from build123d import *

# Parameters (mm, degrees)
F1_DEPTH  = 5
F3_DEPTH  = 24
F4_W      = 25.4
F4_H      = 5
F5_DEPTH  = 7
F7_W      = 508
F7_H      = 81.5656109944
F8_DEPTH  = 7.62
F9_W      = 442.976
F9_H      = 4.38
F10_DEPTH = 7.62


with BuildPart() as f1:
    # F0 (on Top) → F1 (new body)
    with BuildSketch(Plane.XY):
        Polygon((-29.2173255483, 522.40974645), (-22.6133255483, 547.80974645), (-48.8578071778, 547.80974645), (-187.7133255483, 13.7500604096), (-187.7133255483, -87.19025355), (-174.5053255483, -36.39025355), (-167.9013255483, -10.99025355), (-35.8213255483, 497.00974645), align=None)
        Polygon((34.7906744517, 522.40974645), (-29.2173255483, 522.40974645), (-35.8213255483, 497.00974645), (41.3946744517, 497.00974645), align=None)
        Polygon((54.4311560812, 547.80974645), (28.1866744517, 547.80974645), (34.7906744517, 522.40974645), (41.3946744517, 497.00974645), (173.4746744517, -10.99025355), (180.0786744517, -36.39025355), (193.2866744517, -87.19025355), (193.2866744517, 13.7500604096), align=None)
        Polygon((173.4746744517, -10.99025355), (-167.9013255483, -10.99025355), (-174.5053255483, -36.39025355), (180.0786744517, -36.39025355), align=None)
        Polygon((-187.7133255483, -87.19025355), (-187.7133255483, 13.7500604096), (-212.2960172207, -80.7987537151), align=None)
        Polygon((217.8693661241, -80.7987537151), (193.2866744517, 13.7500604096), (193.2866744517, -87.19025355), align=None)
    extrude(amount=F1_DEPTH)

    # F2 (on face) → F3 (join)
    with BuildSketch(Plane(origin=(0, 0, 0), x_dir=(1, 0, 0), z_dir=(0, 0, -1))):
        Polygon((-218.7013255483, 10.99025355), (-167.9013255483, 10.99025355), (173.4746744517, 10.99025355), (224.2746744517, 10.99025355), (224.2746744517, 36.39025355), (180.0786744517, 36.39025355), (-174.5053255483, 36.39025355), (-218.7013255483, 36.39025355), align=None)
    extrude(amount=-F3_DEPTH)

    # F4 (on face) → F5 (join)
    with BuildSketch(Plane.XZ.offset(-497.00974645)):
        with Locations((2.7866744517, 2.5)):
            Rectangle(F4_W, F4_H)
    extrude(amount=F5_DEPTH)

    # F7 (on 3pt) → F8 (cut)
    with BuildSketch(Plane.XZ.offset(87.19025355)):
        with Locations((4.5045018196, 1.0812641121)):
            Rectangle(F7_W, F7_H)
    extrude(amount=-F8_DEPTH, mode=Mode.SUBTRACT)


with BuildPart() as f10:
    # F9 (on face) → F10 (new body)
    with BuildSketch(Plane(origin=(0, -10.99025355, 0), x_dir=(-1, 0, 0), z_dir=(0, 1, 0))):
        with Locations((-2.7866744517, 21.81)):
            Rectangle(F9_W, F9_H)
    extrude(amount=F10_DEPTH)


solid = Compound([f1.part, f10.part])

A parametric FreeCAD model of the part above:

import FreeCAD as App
import Part
import Sketcher
Q = App.Units.Quantity

doc = App.newDocument("Part")
body = doc.addObject("PartDesign::Body", "Body")

sketch1 = doc.addObject("Sketcher::SketchObject", "Sketch")
body.addObject(sketch1)
sketch1.AttachmentSupport = (doc.XY_Plane, [""])
sketch1.MapMode = "FlatFace"
sketch1.addGeometry(Part.LineSegment(App.Vector(-23, 548, 0), App.Vector(-49, 548, 0)), False)
sketch1.addGeometry(Part.LineSegment(App.Vector(-49, 548, 0), App.Vector(-212, -81, 0)), False)
sketch1.addGeometry(Part.LineSegment(App.Vector(-212, -81, 0), App.Vector(-188, -87, 0)), False)
sketch1.addGeometry(Part.LineSegment(App.Vector(-188, -87, 0), App.Vector(-175, -36, 0)), False)
sketch1.addGeometry(Part.LineSegment(App.Vector(-175, -36, 0), App.Vector(180, -36, 0)), False)
sketch1.addGeometry(Part.LineSegment(App.Vector(180, -36, 0), App.Vector(193, -87, 0)), False)
sketch1.addGeometry(Part.LineSegment(App.Vector(193, -87, 0), App.Vector(218, -81, 0)), False)
sketch1.addGeometry(Part.LineSegment(App.Vector(218, -81, 0), App.Vector(54, 548, 0)), False)
sketch1.addGeometry(Part.LineSegment(App.Vector(54, 548, 0), App.Vector(28, 548, 0)), False)
sketch1.addGeometry(Part.LineSegment(App.Vector(28, 548, 0), App.Vector(35, 522, 0)), False)
sketch1.addGeometry(Part.LineSegment(App.Vector(35, 522, 0), App.Vector(-29, 522, 0)), False)
sketch1.addGeometry(Part.LineSegment(App.Vector(-29, 522, 0), App.Vector(-23, 548, 0)), False)
sketch1.addGeometry(Part.LineSegment(App.Vector(-168, -11, 0), App.Vector(-36, 497, 0)), False)
sketch1.addGeometry(Part.LineSegment(App.Vector(-36, 497, 0), App.Vector(41, 497, 0)), False)
sketch1.addGeometry(Part.LineSegment(App.Vector(41, 497, 0), App.Vector(173, -11, 0)), False)
sketch1.addGeometry(Part.LineSegment(App.Vector(173, -11, 0), App.Vector(-168, -11, 0)), False)
sketch1.addConstraint(Sketcher.Constraint("Coincident", 0, 2, 1, 1))
sketch1.addConstraint(Sketcher.Constraint("Coincident", 1, 2, 2, 1))
sketch1.addConstraint(Sketcher.Constraint("Coincident", 2, 2, 3, 1))
sketch1.addConstraint(Sketcher.Constraint("Coincident", 3, 2, 4, 1))
sketch1.addConstraint(Sketcher.Constraint("Coincident", 4, 2, 5, 1))
sketch1.addConstraint(Sketcher.Constraint("Coincident", 5, 2, 6, 1))
sketch1.addConstraint(Sketcher.Constraint("Coincident", 6, 2, 7, 1))
sketch1.addConstraint(Sketcher.Constraint("Coincident", 7, 2, 8, 1))
sketch1.addConstraint(Sketcher.Constraint("Coincident", 8, 2, 9, 1))
sketch1.addConstraint(Sketcher.Constraint("Coincident", 9, 2, 10, 1))
sketch1.addConstraint(Sketcher.Constraint("Coincident", 10, 2, 11, 1))
sketch1.addConstraint(Sketcher.Constraint("Coincident", 11, 2, 0, 1))
sketch1.addConstraint(Sketcher.Constraint("Coincident", 12, 2, 13, 1))
sketch1.addConstraint(Sketcher.Constraint("Coincident", 13, 2, 14, 1))
sketch1.addConstraint(Sketcher.Constraint("Coincident", 14, 2, 15, 1))
sketch1.addConstraint(Sketcher.Constraint("Coincident", 15, 2, 12, 1))
sketch1.addConstraint(Sketcher.Constraint("Horizontal", 0))
sketch1.addConstraint(Sketcher.Constraint("Horizontal", 4))
sketch1.addConstraint(Sketcher.Constraint("Horizontal", 8))
sketch1.addConstraint(Sketcher.Constraint("Horizontal", 10))
sketch1.addConstraint(Sketcher.Constraint("Horizontal", 13))
sketch1.addConstraint(Sketcher.Constraint("Horizontal", 15))
sketch1.addConstraint(Sketcher.Constraint("Perpendicular", 1, 2))
sketch1.addConstraint(Sketcher.Constraint("Perpendicular", 2, 3))
sketch1.addConstraint(Sketcher.Constraint("Perpendicular", 5, 6))
sketch1.addConstraint(Sketcher.Constraint("Perpendicular", 6, 7))
sketch1.addConstraint(Sketcher.Constraint("Parallel", 7, 9))
sketch1.addConstraint(Sketcher.Constraint("Parallel", 3, 11))
sketch1.addConstraint(Sketcher.Constraint("Parallel", 11, 12))
sketch1.addConstraint(Sketcher.Constraint("Parallel", 9, 14))
sketch1.addConstraint(Sketcher.Constraint("Horizontal", 2, 2, 5, 2))
sketch1.addConstraint(Sketcher.Constraint("Horizontal", 1, 2, 6, 2))
sketch1.addConstraint(Sketcher.Constraint("Horizontal", 0, 2, 7, 2))
sketch1.addConstraint(Sketcher.Constraint("Equal", 0, 8))
sketch1.addConstraint(Sketcher.Constraint("Equal", 3, 5))
sketch1.addConstraint(Sketcher.Constraint("Distance", 2, Q("1 in")))
sketch1.addConstraint(Sketcher.Constraint("DistanceY", 2, 2, 0, 2, Q("25 in")))
sketch1.addConstraint(Sketcher.Constraint("DistanceY", 2, 2, 3, 2, Q("2 in")))
sketch1.addConstraint(Sketcher.Constraint("DistanceX", 2, 2, 5, 2, Q("15 in")))
sketch1.addConstraint(Sketcher.Constraint("DistanceY", 9, 2, 8, 2, Q("1 in")))
sketch1.addConstraint(Sketcher.Constraint("DistanceX", 11, 2, 8, 2, Q("2 in")))
sketch1.addConstraint(Sketcher.Constraint("DistanceY", 12, 2, 10, 2, Q("1 in")))
sketch1.addConstraint(Sketcher.Constraint("DistanceY", 4, 2, 14, 2, Q("1 in")))
sketch1.addConstraint(Sketcher.Constraint("DistanceX", 4, 1, 4, 2, Q("13.96 in")))
sketch1.addConstraint(Sketcher.Constraint("DistanceX", 13, 1, 13, 2, Q("3.04 in")))
sketch1.addConstraint(Sketcher.Constraint("DistanceX", 3, 2, 14, 2, Q("13.7 in")))
sketch1.addConstraint(Sketcher.Constraint("DistanceX", 0, 2, -1, 1, 48.857807))
sketch1.addConstraint(Sketcher.Constraint("DistanceY", -1, 1, 0, 2, 547.809746))
pad1 = doc.addObject("PartDesign::Pad", "Pad")
body.addObject(pad1)
pad1.Profile = sketch1
pad1.Length = 5

sketch2 = doc.addObject("Sketcher::SketchObject", "Sketch001")
body.addObject(sketch2)
sketch2.AttachmentSupport = (doc.XY_Plane, [""])
sketch2.MapMode = "FlatFace"
sketch2.addGeometry(Part.LineSegment(App.Vector(-219, -11, 0), App.Vector(224, -11, 0)), False)
sketch2.addGeometry(Part.LineSegment(App.Vector(224, -11, 0), App.Vector(224, -36, 0)), False)
sketch2.addGeometry(Part.LineSegment(App.Vector(224, -36, 0), App.Vector(-219, -36, 0)), False)
sketch2.addGeometry(Part.LineSegment(App.Vector(-219, -36, 0), App.Vector(-219, -11, 0)), False)
sketch2.addConstraint(Sketcher.Constraint("Coincident", 0, 2, 1, 1))
sketch2.addConstraint(Sketcher.Constraint("Coincident", 1, 2, 2, 1))
sketch2.addConstraint(Sketcher.Constraint("Coincident", 2, 2, 3, 1))
sketch2.addConstraint(Sketcher.Constraint("Coincident", 3, 2, 0, 1))
sketch2.addConstraint(Sketcher.Constraint("Horizontal", 0))
sketch2.addConstraint(Sketcher.Constraint("Vertical", 1))
sketch2.addConstraint(Sketcher.Constraint("Horizontal", 2))
sketch2.addConstraint(Sketcher.Constraint("Vertical", 3))
sketch2.addConstraint(Sketcher.Constraint("DistanceY", 1, 2, 1, 1, Q("1 in")))
sketch2.addConstraint(Sketcher.Constraint("DistanceX", 0, 1, 0, 2, Q("17.44 in")))
sketch2.addConstraint(Sketcher.Constraint("DistanceX", -1, 1, 0, 2, 224.274674))
sketch2.addConstraint(Sketcher.Constraint("DistanceY", 0, 2, -1, 1, 10.990254))
pad2 = doc.addObject("PartDesign::Pad", "Pad001")
body.addObject(pad2)
pad2.Profile = sketch2
pad2.Length = 24

sketch3 = doc.addObject("Sketcher::SketchObject", "Sketch002")
body.addObject(sketch3)
sketch3.AttachmentSupport = (doc.XZ_Plane, [""])
sketch3.MapMode = "FlatFace"
sketch3.AttachmentOffset = App.Placement(App.Vector(0, 0, -497.009746), App.Rotation())
sketch3.addGeometry(Part.LineSegment(App.Vector(-10, 5, 0), App.Vector(-10, 0, 0)), False)
sketch3.addGeometry(Part.LineSegment(App.Vector(-10, 0, 0), App.Vector(15, 0, 0)), False)
sketch3.addGeometry(Part.LineSegment(App.Vector(15, 0, 0), App.Vector(15, 5, 0)), False)
sketch3.addGeometry(Part.LineSegment(App.Vector(15, 5, 0), App.Vector(-10, 5, 0)), False)
sketch3.addConstraint(Sketcher.Constraint("Coincident", 0, 2, 1, 1))
sketch3.addConstraint(Sketcher.Constraint("Coincident", 1, 2, 2, 1))
sketch3.addConstraint(Sketcher.Constraint("Coincident", 2, 2, 3, 1))
sketch3.addConstraint(Sketcher.Constraint("Coincident", 3, 2, 0, 1))
sketch3.addConstraint(Sketcher.Constraint("Vertical", 0))
sketch3.addConstraint(Sketcher.Constraint("Horizontal", 1))
sketch3.addConstraint(Sketcher.Constraint("Vertical", 2))
sketch3.addConstraint(Sketcher.Constraint("Horizontal", 3))
sketch3.addConstraint(Sketcher.Constraint("PointOnObject", 0, 2, -1))
sketch3.addConstraint(Sketcher.Constraint("DistanceX", 1, 1, 1, 2, Q("1 in")))
sketch3.addConstraint(Sketcher.Constraint("DistanceY", 0, 2, 0, 1, 5.0))
sketch3.addConstraint(Sketcher.Constraint("DistanceX", 0, 2, -1, 1, 9.913326))
pad3 = doc.addObject("PartDesign::Pad", "Pad002")
body.addObject(pad3)
pad3.Profile = sketch3
pad3.Length = 7

sketch4 = doc.addObject("Sketcher::SketchObject", "Sketch003")
body.addObject(sketch4)
sketch4.AttachmentSupport = (doc.XZ_Plane, [""])
sketch4.MapMode = "FlatFace"
sketch4.AttachmentOffset = App.Placement(App.Vector(0, 0, 87.190254), App.Rotation())
sketch4.addGeometry(Part.LineSegment(App.Vector(-249, 42, 0), App.Vector(-249, -40, 0)), False)
sketch4.addGeometry(Part.LineSegment(App.Vector(-249, -40, 0), App.Vector(259, -40, 0)), False)
sketch4.addGeometry(Part.LineSegment(App.Vector(259, -40, 0), App.Vector(259, 42, 0)), False)
sketch4.addGeometry(Part.LineSegment(App.Vector(259, 42, 0), App.Vector(-249, 42, 0)), False)
sketch4.addConstraint(Sketcher.Constraint("Coincident", 0, 2, 1, 1))
sketch4.addConstraint(Sketcher.Constraint("Coincident", 1, 2, 2, 1))
sketch4.addConstraint(Sketcher.Constraint("Coincident", 2, 2, 3, 1))
sketch4.addConstraint(Sketcher.Constraint("Coincident", 3, 2, 0, 1))
sketch4.addConstraint(Sketcher.Constraint("Vertical", 0))
sketch4.addConstraint(Sketcher.Constraint("Horizontal", 1))
sketch4.addConstraint(Sketcher.Constraint("Vertical", 2))
sketch4.addConstraint(Sketcher.Constraint("Horizontal", 3))
sketch4.addConstraint(Sketcher.Constraint("DistanceX", 1, 1, 1, 2, Q("20 in")))
sketch4.addConstraint(Sketcher.Constraint("DistanceY", 0, 2, 0, 1, 81.565611))
sketch4.addConstraint(Sketcher.Constraint("DistanceX", 0, 2, -1, 1, 249.495498))
sketch4.addConstraint(Sketcher.Constraint("DistanceY", 0, 2, -1, 1, 39.701541))
pocket1 = doc.addObject("PartDesign::Pocket", "Pocket")
body.addObject(pocket1)
pocket1.Profile = sketch4
pocket1.Length = Q("0.3 in")
body2 = doc.addObject("PartDesign::Body", "Body001")

sketch5 = doc.addObject("Sketcher::SketchObject", "Sketch004")
body2.addObject(sketch5)
sketch5.AttachmentSupport = (doc.getObject("XZ_Plane001"), [""])
sketch5.MapMode = "FlatFace"
sketch5.AttachmentOffset = App.Placement(App.Vector(0, 0, 10.990254), App.Rotation())
sketch5.addGeometry(Part.LineSegment(App.Vector(224.3, 24, 0), App.Vector(224.3, 19.6, 0)), False)
sketch5.addGeometry(Part.LineSegment(App.Vector(224.3, 19.6, 0), App.Vector(-218.7, 19.6, 0)), False)
sketch5.addGeometry(Part.LineSegment(App.Vector(-218.7, 19.6, 0), App.Vector(-218.7, 24, 0)), False)
sketch5.addGeometry(Part.LineSegment(App.Vector(-218.7, 24, 0), App.Vector(224.3, 24, 0)), False)
sketch5.addConstraint(Sketcher.Constraint("Coincident", 0, 2, 1, 1))
sketch5.addConstraint(Sketcher.Constraint("Coincident", 1, 2, 2, 1))
sketch5.addConstraint(Sketcher.Constraint("Coincident", 2, 2, 3, 1))
sketch5.addConstraint(Sketcher.Constraint("Coincident", 3, 2, 0, 1))
sketch5.addConstraint(Sketcher.Constraint("Vertical", 0))
sketch5.addConstraint(Sketcher.Constraint("Horizontal", 1))
sketch5.addConstraint(Sketcher.Constraint("Vertical", 2))
sketch5.addConstraint(Sketcher.Constraint("Horizontal", 3))
sketch5.addConstraint(Sketcher.Constraint("DistanceX", 1, 2, 1, 1, Q("17.44 in")))
sketch5.addConstraint(Sketcher.Constraint("DistanceY", 0, 2, 0, 1, 4.38))
sketch5.addConstraint(Sketcher.Constraint("DistanceY", -1, 1, 0, 2, 19.62))
sketch5.addConstraint(Sketcher.Constraint("DistanceX", -1, 1, 0, 2, 224.274674))
pad4 = doc.addObject("PartDesign::Pad", "Pad003")
body2.addObject(pad4)
pad4.Profile = sketch5
pad4.Length = Q("0.3 in")
pad4.Reversed = True

doc.recompute()
